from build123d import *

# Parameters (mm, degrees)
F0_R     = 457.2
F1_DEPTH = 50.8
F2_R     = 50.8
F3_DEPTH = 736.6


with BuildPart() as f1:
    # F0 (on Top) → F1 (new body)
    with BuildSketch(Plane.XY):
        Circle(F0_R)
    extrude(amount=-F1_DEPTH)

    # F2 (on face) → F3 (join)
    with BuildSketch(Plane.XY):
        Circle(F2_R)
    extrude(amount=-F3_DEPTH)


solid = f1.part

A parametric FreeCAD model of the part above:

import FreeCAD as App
import Part
import Sketcher
from FreeCAD import Vector
Q = App.Units.Quantity

doc = App.newDocument("Part")
body = doc.addObject("PartDesign::Body", "Body")

sketch1 = doc.addObject("Sketcher::SketchObject", "Sketch")
body.addObject(sketch1)
sketch1.AttachmentSupport = (doc.XY_Plane, [""])
sketch1.MapMode = "FlatFace"
sketch1.addGeometry(Part.Circle(Vector(0, 0, 0), Vector(0, 0, 1), 457), False)
sketch1.addConstraint([
    Sketcher.Constraint("Coincident", 0, 3, -1, 1),
    Sketcher.Constraint("Diameter", 0, Q("36 in")),
])
pad1 = doc.addObject("PartDesign::Pad", "Pad")
body.addObject(pad1)
pad1.Profile = sketch1
pad1.Length = Q("2 in")
pad1.Reversed = True

sketch2 = doc.addObject("Sketcher::SketchObject", "Sketch001")
body.addObject(sketch2)
sketch2.AttachmentSupport = (doc.XY_Plane, [""])
sketch2.MapMode = "FlatFace"
sketch2.addGeometry(Part.Circle(Vector(0, 0, 0), Vector(0, 0, 1), 51), False)
sketch2.addConstraint([
    Sketcher.Constraint("Coincident", 0, 3, -1, 1),
    Sketcher.Constraint("Diameter", 0, Q("4 in")),
])
pad2 = doc.addObject("PartDesign::Pad", "Pad001")
body.addObject(pad2)
pad2.Profile = sketch2
pad2.Length = Q("29 in")
pad2.Reversed = True

doc.recompute()
